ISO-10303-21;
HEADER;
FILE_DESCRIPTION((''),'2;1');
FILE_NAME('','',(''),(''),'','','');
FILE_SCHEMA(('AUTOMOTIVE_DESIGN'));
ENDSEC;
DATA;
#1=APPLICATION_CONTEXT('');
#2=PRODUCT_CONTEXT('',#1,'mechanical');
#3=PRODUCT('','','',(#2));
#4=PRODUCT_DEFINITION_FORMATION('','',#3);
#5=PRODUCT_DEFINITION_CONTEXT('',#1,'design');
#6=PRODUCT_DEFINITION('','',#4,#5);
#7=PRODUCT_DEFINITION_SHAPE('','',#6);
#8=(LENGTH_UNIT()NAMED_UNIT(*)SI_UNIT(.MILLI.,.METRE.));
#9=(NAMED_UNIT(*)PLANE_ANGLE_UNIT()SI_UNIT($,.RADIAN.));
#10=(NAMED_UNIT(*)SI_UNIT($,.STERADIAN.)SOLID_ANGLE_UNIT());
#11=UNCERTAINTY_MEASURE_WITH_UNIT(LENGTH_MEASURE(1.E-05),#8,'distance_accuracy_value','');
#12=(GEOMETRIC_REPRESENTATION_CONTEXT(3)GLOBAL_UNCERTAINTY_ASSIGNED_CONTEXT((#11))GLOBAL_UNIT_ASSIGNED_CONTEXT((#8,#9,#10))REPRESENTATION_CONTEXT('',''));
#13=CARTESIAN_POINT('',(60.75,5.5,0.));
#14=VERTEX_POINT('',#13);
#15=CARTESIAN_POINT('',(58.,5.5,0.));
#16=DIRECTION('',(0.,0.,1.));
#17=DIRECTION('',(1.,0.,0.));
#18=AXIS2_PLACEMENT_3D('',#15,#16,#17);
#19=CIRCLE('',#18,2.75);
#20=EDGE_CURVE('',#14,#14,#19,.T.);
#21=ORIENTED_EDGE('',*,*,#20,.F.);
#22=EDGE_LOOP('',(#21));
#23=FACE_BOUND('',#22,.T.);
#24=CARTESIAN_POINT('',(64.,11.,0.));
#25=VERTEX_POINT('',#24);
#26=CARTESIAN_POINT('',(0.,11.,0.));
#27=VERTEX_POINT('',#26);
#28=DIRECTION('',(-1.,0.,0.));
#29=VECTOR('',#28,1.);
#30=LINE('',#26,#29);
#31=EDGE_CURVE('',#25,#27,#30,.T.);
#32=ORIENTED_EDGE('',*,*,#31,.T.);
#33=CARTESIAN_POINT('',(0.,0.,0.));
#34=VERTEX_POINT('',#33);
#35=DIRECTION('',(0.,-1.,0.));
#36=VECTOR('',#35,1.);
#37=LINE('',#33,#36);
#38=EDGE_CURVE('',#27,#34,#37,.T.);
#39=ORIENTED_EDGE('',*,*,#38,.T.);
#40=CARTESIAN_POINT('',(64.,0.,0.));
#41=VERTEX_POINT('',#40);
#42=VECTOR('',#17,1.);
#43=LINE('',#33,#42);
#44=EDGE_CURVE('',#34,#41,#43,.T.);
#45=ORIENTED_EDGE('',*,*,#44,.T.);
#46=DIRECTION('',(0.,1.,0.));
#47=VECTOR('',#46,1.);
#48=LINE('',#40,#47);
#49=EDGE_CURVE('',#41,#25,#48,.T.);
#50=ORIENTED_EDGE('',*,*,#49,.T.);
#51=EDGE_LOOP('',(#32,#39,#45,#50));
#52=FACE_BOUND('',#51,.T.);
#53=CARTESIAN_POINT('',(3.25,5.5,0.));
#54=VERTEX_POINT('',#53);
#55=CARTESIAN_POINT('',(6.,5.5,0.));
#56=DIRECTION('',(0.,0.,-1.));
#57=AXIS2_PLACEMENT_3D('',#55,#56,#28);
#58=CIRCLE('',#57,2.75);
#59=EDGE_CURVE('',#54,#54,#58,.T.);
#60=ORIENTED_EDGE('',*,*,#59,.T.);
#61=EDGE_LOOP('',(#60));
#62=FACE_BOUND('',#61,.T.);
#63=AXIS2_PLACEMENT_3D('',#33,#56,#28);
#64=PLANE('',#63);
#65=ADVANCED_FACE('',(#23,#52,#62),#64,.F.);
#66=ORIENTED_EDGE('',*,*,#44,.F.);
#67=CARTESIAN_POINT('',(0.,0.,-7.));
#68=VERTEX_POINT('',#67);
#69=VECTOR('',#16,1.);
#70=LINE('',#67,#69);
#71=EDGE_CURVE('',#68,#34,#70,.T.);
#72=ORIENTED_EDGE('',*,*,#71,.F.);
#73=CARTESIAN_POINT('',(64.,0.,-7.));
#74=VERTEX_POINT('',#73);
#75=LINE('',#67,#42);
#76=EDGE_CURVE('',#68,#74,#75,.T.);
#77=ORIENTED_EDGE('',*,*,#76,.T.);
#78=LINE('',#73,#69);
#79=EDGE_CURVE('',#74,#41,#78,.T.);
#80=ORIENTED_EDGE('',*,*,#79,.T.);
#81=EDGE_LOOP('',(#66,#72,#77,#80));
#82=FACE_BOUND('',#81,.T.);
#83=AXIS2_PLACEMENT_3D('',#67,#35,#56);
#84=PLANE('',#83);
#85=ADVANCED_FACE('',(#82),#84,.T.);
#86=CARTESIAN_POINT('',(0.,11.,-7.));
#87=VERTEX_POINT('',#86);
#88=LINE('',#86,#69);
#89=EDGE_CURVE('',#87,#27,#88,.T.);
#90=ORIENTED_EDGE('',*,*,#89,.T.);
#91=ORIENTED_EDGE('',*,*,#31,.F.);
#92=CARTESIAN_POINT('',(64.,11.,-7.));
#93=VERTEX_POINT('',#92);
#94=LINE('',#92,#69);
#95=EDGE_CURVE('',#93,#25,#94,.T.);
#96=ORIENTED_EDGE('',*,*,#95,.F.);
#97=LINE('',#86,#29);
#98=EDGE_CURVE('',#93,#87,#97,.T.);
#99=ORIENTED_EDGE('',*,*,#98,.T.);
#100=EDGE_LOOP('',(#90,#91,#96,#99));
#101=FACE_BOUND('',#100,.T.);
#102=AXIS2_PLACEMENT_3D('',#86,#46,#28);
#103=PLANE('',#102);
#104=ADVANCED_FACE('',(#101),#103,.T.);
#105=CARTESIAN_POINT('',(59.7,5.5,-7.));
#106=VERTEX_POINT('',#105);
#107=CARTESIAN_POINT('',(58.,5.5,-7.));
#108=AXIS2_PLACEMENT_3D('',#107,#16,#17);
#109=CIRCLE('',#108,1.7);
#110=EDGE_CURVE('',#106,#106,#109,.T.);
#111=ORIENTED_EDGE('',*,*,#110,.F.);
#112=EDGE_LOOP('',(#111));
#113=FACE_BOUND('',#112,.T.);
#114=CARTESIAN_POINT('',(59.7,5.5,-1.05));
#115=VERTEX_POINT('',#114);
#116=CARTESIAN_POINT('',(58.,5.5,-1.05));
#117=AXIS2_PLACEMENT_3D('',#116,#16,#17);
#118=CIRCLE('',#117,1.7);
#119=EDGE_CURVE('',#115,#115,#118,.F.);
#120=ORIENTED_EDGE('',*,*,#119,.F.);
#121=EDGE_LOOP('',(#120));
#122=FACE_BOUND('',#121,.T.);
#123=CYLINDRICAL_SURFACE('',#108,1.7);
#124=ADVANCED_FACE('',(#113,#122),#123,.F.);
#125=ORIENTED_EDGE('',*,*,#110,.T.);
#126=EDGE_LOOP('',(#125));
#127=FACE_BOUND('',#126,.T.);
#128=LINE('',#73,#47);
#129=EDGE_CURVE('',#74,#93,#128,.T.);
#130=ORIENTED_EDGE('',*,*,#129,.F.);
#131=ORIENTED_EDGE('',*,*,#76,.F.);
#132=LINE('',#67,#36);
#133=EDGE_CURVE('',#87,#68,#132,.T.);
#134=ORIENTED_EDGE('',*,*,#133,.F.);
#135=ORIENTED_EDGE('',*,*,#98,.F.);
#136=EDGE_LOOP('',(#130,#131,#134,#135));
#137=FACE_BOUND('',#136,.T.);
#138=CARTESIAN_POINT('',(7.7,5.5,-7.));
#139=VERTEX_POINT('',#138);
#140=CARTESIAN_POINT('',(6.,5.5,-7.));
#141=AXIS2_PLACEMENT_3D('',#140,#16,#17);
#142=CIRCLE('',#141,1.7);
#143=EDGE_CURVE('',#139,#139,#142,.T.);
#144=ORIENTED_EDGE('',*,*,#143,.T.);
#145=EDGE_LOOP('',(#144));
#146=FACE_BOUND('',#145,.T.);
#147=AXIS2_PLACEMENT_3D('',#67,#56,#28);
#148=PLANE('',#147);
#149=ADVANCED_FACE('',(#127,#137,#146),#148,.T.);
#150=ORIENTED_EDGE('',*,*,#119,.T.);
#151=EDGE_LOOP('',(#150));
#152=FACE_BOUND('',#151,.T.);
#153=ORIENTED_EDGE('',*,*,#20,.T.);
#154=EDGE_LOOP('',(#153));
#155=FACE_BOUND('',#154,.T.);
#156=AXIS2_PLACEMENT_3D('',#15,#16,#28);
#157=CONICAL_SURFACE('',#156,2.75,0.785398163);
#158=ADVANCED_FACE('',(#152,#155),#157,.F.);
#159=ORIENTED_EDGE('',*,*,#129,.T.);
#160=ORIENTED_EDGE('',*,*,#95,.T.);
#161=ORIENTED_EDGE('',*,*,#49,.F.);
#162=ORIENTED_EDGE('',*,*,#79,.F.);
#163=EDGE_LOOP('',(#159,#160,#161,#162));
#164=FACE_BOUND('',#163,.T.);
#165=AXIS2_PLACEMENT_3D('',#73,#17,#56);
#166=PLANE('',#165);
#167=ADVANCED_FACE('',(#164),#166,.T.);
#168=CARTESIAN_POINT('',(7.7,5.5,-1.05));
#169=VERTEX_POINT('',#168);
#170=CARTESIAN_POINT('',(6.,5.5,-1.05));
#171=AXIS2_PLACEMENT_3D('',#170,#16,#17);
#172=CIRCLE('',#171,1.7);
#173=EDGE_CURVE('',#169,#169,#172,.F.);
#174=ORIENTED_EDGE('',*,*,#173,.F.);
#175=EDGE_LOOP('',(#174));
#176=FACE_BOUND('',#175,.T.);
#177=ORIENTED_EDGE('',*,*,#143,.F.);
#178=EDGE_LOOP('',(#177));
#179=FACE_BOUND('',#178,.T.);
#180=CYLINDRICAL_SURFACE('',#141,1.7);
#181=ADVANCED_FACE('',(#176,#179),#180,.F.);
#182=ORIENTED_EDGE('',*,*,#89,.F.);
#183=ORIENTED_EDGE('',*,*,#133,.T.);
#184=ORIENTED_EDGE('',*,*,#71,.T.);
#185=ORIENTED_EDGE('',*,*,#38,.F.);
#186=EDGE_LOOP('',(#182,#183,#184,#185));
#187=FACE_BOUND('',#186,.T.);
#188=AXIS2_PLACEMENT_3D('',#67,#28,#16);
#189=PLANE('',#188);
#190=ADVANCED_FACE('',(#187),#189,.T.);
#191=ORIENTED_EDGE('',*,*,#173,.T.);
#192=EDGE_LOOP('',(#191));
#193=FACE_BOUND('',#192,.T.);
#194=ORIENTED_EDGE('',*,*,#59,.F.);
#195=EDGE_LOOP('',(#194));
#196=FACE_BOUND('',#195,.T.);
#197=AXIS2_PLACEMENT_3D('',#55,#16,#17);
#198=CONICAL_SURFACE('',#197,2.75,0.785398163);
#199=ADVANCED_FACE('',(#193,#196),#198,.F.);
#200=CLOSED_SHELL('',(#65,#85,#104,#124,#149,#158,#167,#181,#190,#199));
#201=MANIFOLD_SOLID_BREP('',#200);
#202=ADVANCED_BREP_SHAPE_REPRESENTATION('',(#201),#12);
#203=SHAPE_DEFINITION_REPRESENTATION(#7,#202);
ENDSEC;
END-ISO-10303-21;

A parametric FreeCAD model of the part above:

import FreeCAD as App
import Part
import Sketcher
from FreeCAD import Vector
Q = App.Units.Quantity


def add_polygon(sketch, points):
    """Adds a closed chain of lines whose ends are joined by coincident constraints."""
    first, n = sketch.GeometryCount, len(points)
    for a, b in zip(points, points[1:] + points[:1]):
        sketch.addGeometry(Part.LineSegment(App.Vector(*a, 0), App.Vector(*b, 0)), False)
    for i in range(n):
        sketch.addConstraint(Sketcher.Constraint("Coincident", first + i, 2, first + (i + 1) % n, 1))

doc = App.newDocument("Part")
body = doc.addObject("PartDesign::Body", "Body")

sketch1 = doc.addObject("Sketcher::SketchObject", "Sketch")
body.addObject(sketch1)
sketch1.AttachmentSupport = (doc.XY_Plane, [""])
sketch1.MapMode = "FlatFace"
add_polygon(sketch1, [(0, 11), (0, 0), (64, 0), (64, 11)])
sketch1.addConstraint(Sketcher.Constraint("Vertical", 0))
sketch1.addConstraint(Sketcher.Constraint("Horizontal", 1))
sketch1.addConstraint(Sketcher.Constraint("Vertical", 2))
sketch1.addConstraint(Sketcher.Constraint("Horizontal", 3))
sketch1.addConstraint(Sketcher.Constraint("Coincident", 0, 2, -1, 1))
sketch1.addConstraint(Sketcher.Constraint("DistanceX", 1, 1, 1, 2, Q("64 mm")))
sketch1.addConstraint(Sketcher.Constraint("DistanceY", 0, 2, 0, 1, Q("11 mm")))
pad1 = doc.addObject("PartDesign::Pad", "Pad")
body.addObject(pad1)
pad1.Profile = sketch1
pad1.Length = 7
pad1.Reversed = True

sketch2 = doc.addObject("Sketcher::SketchObject", "Sketch001")
body.addObject(sketch2)
sketch2.AttachmentSupport = (doc.XY_Plane, [""])
sketch2.MapMode = "FlatFace"
sketch2.addGeometry(Part.Circle(Vector(6, 5.5, 0), Vector(0, 0, 1), 1.7), False)
sketch2.addGeometry(Part.Circle(Vector(58, 5.5, 0), Vector(0, 0, 1), 1.7), False)
sketch2.addConstraint(Sketcher.Constraint("Equal", 0, 1))
sketch2.addConstraint(Sketcher.Constraint("Horizontal", 0, 3, 1, 3))
sketch2.addConstraint(Sketcher.Constraint("Diameter", 0, Q("3.4 mm")))
sketch2.addConstraint(Sketcher.Constraint("DistanceX", -1, 1, 0, 3, Q("6 mm")))
sketch2.addConstraint(Sketcher.Constraint("DistanceX", -1, 1, 1, 3, Q("58 mm")))
sketch2.addConstraint(Sketcher.Constraint("DistanceY", -1, 1, 0, 3, Q("5.5 mm")))
pocket1 = doc.addObject("PartDesign::Pocket", "Pocket")
body.addObject(pocket1)
pocket1.Profile = sketch2
pocket1.Type = "ThroughAll"

sketch3 = doc.addObject("Sketcher::SketchObject", "Sketch002")
body.addObject(sketch3)
sketch3.AttachmentSupport = (doc.XZ_Plane, [""])
sketch3.MapMode = "FlatFace"
sketch3.AttachmentOffset = App.Placement(Vector(0, 0, -5.5), App.Rotation())
add_polygon(sketch3, [(3.2, 0), (6, 0), (6, -2.8)])
sketch3.addGeometry(Part.LineSegment(Vector(6, -2.8, 0), Vector(6, 0, 0)), True)
sketch3.addConstraint(Sketcher.Constraint("Horizontal", 0))
sketch3.addConstraint(Sketcher.Constraint("Vertical", 1))
sketch3.addConstraint(Sketcher.Constraint("Vertical", 3))
sketch3.addConstraint(Sketcher.Constraint("Coincident", 3, 1, 1, 2))
sketch3.addConstraint(Sketcher.Constraint("PointOnObject", 0, 2, -1))
sketch3.addConstraint(Sketcher.Constraint("PointOnObject", 3, 2, -1))
sketch3.addConstraint(Sketcher.Constraint("Equal", 0, 1))
sketch3.addConstraint(Sketcher.Constraint("DistanceX", -1, 1, 0, 2, Q("6 mm")))
sketch3.addConstraint(Sketcher.Constraint("DistanceX", 0, 1, 0, 2, Q("2.75 mm")))
groove = doc.addObject("PartDesign::Groove", "Groove")
body.addObject(groove)
groove.Profile = sketch3
groove.ReferenceAxis = (sketch3, ["Axis0"])
groove.Angle = 360
doc.recompute()

datumplane = doc.addObject("PartDesign::Plane", "DatumPlane")
body.addObject(datumplane)
datumplane.AttachmentSupport = (doc.YZ_Plane, [""])
datumplane.MapMode = "FlatFace"
datumplane.AttachmentOffset = App.Placement(Vector(0, 0, 32), App.Rotation())
mirrored = doc.addObject("PartDesign::Mirrored", "Mirrored")
body.addObject(mirrored)
mirrored.Originals = [groove]
mirrored.MirrorPlane = (datumplane, [""])
body.Tip = mirrored

doc.recompute()
